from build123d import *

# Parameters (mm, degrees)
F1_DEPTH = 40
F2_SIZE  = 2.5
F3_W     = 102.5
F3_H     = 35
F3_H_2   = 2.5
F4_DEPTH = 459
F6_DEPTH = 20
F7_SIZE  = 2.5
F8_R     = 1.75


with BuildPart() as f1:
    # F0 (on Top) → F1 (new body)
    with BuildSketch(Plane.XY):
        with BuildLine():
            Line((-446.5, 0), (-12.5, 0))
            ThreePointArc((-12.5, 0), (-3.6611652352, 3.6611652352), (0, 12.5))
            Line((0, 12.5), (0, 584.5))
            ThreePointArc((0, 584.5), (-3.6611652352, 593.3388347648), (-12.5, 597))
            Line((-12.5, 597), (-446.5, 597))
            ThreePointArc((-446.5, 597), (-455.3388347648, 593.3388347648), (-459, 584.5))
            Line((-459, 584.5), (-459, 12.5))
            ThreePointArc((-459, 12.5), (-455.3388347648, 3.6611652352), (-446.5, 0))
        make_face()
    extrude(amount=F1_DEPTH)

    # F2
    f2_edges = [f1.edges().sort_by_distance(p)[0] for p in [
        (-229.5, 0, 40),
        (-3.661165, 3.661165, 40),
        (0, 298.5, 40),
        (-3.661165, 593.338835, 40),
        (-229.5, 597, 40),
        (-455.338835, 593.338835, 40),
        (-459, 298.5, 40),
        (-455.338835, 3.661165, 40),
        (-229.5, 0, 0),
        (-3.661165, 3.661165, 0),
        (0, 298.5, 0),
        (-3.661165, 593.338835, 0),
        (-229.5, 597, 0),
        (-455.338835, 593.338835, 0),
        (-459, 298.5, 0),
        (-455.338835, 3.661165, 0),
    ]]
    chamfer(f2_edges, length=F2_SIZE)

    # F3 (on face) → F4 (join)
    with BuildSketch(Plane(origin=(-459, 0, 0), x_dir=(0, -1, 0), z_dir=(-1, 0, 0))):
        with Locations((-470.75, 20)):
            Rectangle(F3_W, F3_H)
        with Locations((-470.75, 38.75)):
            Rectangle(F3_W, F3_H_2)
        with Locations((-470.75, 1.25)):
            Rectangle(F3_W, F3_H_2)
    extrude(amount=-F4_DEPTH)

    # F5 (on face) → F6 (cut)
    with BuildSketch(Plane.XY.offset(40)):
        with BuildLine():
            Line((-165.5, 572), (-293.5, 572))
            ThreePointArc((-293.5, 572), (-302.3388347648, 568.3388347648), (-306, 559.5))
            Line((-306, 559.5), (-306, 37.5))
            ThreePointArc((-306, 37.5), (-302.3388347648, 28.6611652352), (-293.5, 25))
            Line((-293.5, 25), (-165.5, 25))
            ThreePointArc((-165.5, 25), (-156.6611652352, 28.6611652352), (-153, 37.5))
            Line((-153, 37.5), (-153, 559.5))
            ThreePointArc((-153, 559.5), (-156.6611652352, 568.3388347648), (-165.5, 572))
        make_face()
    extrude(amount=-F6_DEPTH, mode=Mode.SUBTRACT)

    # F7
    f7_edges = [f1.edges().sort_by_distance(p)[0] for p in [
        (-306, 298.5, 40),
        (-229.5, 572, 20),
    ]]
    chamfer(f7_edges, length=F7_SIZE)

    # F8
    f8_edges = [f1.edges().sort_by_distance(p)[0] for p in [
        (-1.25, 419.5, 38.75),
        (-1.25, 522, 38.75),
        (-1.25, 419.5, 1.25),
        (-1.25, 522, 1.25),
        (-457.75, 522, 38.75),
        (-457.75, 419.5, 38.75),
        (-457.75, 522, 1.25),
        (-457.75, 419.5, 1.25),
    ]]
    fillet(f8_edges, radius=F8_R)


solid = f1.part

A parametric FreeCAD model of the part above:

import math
import FreeCAD as App
import Part
import Sketcher
from FreeCAD import Vector


def edges_at(feature, points):
    """Names of the edges that pass closest to the given points."""
    edges = feature.Shape.Edges
    near = lambda p: min(range(len(edges)), key=lambda i: edges[i].distToShape(Part.Vertex(*p))[0])
    return sorted({f"Edge{near(p) + 1}" for p in points})

doc = App.newDocument("Part")
body = doc.addObject("PartDesign::Body", "Body")

# Sketch on XY plane
sketch1 = body.newObject("Sketcher::SketchObject", "Sketch")
sketch1.AttachmentSupport = (doc.getObject("XY_Plane"), [""])
sketch1.MapMode = "FlatFace"
sketch1.addGeometry([
    Part.LineSegment(Vector(-446, 0, 0), Vector(-12, 0, 0)),  # 0
    Part.ArcOfCircle(Part.Circle(Vector(-12, 12, 0), Vector(0, 0, 1), 12), math.radians(-90), math.radians(0)),  # 1
    Part.LineSegment(Vector(0, 12, 0), Vector(0, 584, 0)),  # 2
    Part.ArcOfCircle(Part.Circle(Vector(-12, 584, 0), Vector(0, 0, 1), 12), math.radians(0), math.radians(90)),  # 3
    Part.LineSegment(Vector(-12, 597, 0), Vector(-446, 597, 0)),  # 4
    Part.ArcOfCircle(Part.Circle(Vector(-446, 584, 0), Vector(0, 0, 1), 12), math.radians(90), math.radians(180)),  # 5
    Part.LineSegment(Vector(-459, 584, 0), Vector(-459, 12, 0)),  # 6
    Part.ArcOfCircle(Part.Circle(Vector(-446, 12, 0), Vector(0, 0, 1), 12), math.radians(180), math.radians(270)),  # 7
], False)
sketch1.addConstraint([
    Sketcher.Constraint("Tangent", 0, 2, 1, 1),
    Sketcher.Constraint("Tangent", 1, 2, 2, 1),
    Sketcher.Constraint("Tangent", 2, 2, 3, 1),
    Sketcher.Constraint("Tangent", 3, 2, 4, 1),
    Sketcher.Constraint("Tangent", 4, 2, 5, 1),
    Sketcher.Constraint("Tangent", 5, 2, 6, 1),
    Sketcher.Constraint("Tangent", 6, 2, 7, 1),
    Sketcher.Constraint("Tangent", 7, 2, 0, 1),
    Sketcher.Constraint("Horizontal", 0),
    Sketcher.Constraint("Vertical", 2),
    Sketcher.Constraint("Horizontal", 4),
    Sketcher.Constraint("Vertical", 6),
    Sketcher.Constraint("Equal", 1, 3),
    Sketcher.Constraint("Equal", 3, 5),
    Sketcher.Constraint("Equal", 5, 7),
    Sketcher.Constraint("PointOnObject", 0, 2, -1),
    Sketcher.Constraint("PointOnObject", 1, 2, -2),
    Sketcher.Constraint("Radius", 1, 12.5),
    Sketcher.Constraint("DistanceX", 0, 1, 0, 2, 434.0),
    Sketcher.Constraint("DistanceY", 2, 1, 2, 2, 572.0),
])
pad1 = body.newObject("PartDesign::Pad", "Pad")
pad1.Profile = sketch1
pad1.Length = 40
doc.recompute()

chamfer = body.newObject("PartDesign::Chamfer", "Chamfer")
chamfer.Base = (pad1, edges_at(pad1, [
    (-229.5, 0, 40),
    (-3.661, 3.661, 40),
    (0, 298.5, 40),
    (-3.661, 593.339, 40),
    (-229.5, 597, 40),
    (-455.339, 593.339, 40),
    (-459, 298.5, 40),
    (-455.339, 3.661, 40),
    (-229.5, 0, 0),
    (-3.661, 3.661, 0),
    (0, 298.5, 0),
    (-3.661, 593.339, 0),
    (-229.5, 597, 0),
    (-455.339, 593.339, 0),
    (-459, 298.5, 0),
    (-455.339, 3.661, 0),
]))
chamfer.Size = 2.5

# Sketch on YZ plane
sketch2 = body.newObject("Sketcher::SketchObject", "Sketch001")
sketch2.AttachmentSupport = (doc.getObject("YZ_Plane"), [""])
sketch2.MapMode = "FlatFace"
sketch2.AttachmentOffset = App.Placement(Vector(0, 0, -459), App.Rotation())
sketch2.addGeometry([
    Part.LineSegment(Vector(420, 40, 0), Vector(522, 40, 0)),
    Part.LineSegment(Vector(522, 40, 0), Vector(522, 0, 0)),
    Part.LineSegment(Vector(522, 0, 0), Vector(420, 0, 0)),
    Part.LineSegment(Vector(420, 0, 0), Vector(420, 40, 0)),
], False)
sketch2.addConstraint([
    Sketcher.Constraint("Coincident", 0, 2, 1, 1),
    Sketcher.Constraint("Coincident", 1, 2, 2, 1),
    Sketcher.Constraint("Coincident", 2, 2, 3, 1),
    Sketcher.Constraint("Coincident", 3, 2, 0, 1),
    Sketcher.Constraint("Horizontal", 0),
    Sketcher.Constraint("Vertical", 1),
    Sketcher.Constraint("Horizontal", 2),
    Sketcher.Constraint("Vertical", 3),
    Sketcher.Constraint("PointOnObject", 1, 2, -1),
    Sketcher.Constraint("DistanceY", 1, 2, 1, 1, 40.0),
    Sketcher.Constraint("DistanceX", 0, 1, 0, 2, 102.5),
    Sketcher.Constraint("DistanceX", -1, 1, 0, 2, 522.0),
])
pad2 = body.newObject("PartDesign::Pad", "Pad001")
pad2.Profile = sketch2
pad2.Length = 459

# Sketch on XY plane
sketch3 = body.newObject("Sketcher::SketchObject", "Sketch002")
sketch3.AttachmentSupport = (doc.getObject("XY_Plane"), [""])
sketch3.MapMode = "FlatFace"
sketch3.AttachmentOffset = App.Placement(Vector(0, 0, 40), App.Rotation())
sketch3.addGeometry([
    Part.LineSegment(Vector(-166, 572, 0), Vector(-294, 572, 0)),  # 0
    Part.ArcOfCircle(Part.Circle(Vector(-294, 560, 0), Vector(0, 0, 1), 12), math.radians(90), math.radians(180)),  # 1
    Part.LineSegment(Vector(-306, 560, 0), Vector(-306, 38, 0)),  # 2
    Part.ArcOfCircle(Part.Circle(Vector(-294, 38, 0), Vector(0, 0, 1), 12), math.radians(180), math.radians(270)),  # 3
    Part.LineSegment(Vector(-294, 25, 0), Vector(-166, 25, 0)),  # 4
    Part.ArcOfCircle(Part.Circle(Vector(-166, 38, 0), Vector(0, 0, 1), 12), math.radians(-90), math.radians(0)),  # 5
    Part.LineSegment(Vector(-153, 38, 0), Vector(-153, 560, 0)),  # 6
    Part.ArcOfCircle(Part.Circle(Vector(-166, 560, 0), Vector(0, 0, 1), 12), math.radians(0), math.radians(90)),  # 7
], False)
sketch3.addConstraint([
    Sketcher.Constraint("Tangent", 0, 2, 1, 1),
    Sketcher.Constraint("Tangent", 1, 2, 2, 1),
    Sketcher.Constraint("Tangent", 2, 2, 3, 1),
    Sketcher.Constraint("Tangent", 3, 2, 4, 1),
    Sketcher.Constraint("Tangent", 4, 2, 5, 1),
    Sketcher.Constraint("Tangent", 5, 2, 6, 1),
    Sketcher.Constraint("Tangent", 6, 2, 7, 1),
    Sketcher.Constraint("Tangent", 7, 2, 0, 1),
    Sketcher.Constraint("Horizontal", 0),
    Sketcher.Constraint("Vertical", 2),
    Sketcher.Constraint("Horizontal", 4),
    Sketcher.Constraint("Vertical", 6),
    Sketcher.Constraint("Equal", 1, 3),
    Sketcher.Constraint("Equal", 3, 5),
    Sketcher.Constraint("Equal", 5, 7),
    Sketcher.Constraint("Radius", 1, 12.5),
    Sketcher.Constraint("DistanceX", 0, 2, 0, 1, 128.0),
    Sketcher.Constraint("DistanceY", 2, 2, 2, 1, 522.0),
    Sketcher.Constraint("DistanceY", -1, 1, 0, 2, 572.0),
    Sketcher.Constraint("DistanceX", 1, 2, -1, 1, 306.0),
])
pocket1 = body.newObject("PartDesign::Pocket", "Pocket")
pocket1.Profile = sketch3
pocket1.Length = 20
doc.recompute()

chamfer2 = body.newObject("PartDesign::Chamfer", "Chamfer001")
chamfer2.Base = (pocket1, edges_at(pocket1, [(-306, 298.5, 40), (-229.5, 572, 20)]))
chamfer2.Size = 2.5
doc.recompute()

fillet = body.newObject("PartDesign::Fillet", "Fillet")
fillet.Base = (chamfer2, edges_at(chamfer2, [
    (-1.25, 419.5, 38.75),
    (-1.25, 522, 38.75),
    (-1.25, 419.5, 1.25),
    (-1.25, 522, 1.25),
    (-457.75, 522, 38.75),
    (-457.75, 419.5, 38.75),
    (-457.75, 522, 1.25),
    (-457.75, 419.5, 1.25),
]))
fillet.Radius = 1.75

doc.recompute()
